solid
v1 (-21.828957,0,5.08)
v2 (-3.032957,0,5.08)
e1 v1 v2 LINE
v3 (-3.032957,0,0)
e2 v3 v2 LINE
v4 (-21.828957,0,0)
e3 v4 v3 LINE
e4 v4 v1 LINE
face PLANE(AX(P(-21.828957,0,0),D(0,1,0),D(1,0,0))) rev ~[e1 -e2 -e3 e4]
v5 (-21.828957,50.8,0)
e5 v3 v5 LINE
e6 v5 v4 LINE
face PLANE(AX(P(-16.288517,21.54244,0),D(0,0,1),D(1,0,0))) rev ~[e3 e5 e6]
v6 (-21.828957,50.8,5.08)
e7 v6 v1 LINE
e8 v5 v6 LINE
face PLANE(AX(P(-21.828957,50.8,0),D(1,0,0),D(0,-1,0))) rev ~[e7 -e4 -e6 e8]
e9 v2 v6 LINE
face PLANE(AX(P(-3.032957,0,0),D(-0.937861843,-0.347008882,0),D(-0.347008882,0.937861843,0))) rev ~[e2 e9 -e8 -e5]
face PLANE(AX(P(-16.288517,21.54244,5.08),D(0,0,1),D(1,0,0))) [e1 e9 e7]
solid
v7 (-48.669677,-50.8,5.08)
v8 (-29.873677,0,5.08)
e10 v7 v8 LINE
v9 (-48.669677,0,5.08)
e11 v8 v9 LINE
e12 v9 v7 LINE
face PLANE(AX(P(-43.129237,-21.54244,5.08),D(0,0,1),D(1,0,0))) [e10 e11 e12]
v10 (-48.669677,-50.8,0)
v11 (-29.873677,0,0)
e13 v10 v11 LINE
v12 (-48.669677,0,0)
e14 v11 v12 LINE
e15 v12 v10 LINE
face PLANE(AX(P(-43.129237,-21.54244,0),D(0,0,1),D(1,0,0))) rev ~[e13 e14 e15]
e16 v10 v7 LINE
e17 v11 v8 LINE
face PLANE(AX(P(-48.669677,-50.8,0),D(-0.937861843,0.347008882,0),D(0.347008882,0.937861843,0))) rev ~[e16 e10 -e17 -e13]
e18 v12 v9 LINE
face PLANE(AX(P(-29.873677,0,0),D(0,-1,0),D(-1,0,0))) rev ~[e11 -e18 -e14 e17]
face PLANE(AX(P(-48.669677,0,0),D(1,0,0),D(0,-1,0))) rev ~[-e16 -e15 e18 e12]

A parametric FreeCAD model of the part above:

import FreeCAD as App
import Part
import Sketcher
Q = App.Units.Quantity

doc = App.newDocument("Part")
params = doc.addObject("Spreadsheet::Sheet", "Params")
for row, (alias, value) in enumerate([
    ("sketch1_height", "2 in"),
    ("sketch1_width", "0.74 in"),
    ("pad1_length", "0.2 in"),
    ("sketch2_height", "2 in"),
    ("sketch2_width", "0.74 in"),
    ("pad2_length", "0.2 in"),
], start=1):
    params.set(f"A{row}", alias)
    params.set(f"B{row}", "=" + value)
    params.setAlias(f"B{row}", alias)

body = doc.addObject("PartDesign::Body", "Body")

sketch1 = body.newObject("Sketcher::SketchObject", "Sketch")
sketch1.AttachmentSupport = (doc.getObject("XY_Plane"), [""])
sketch1.MapMode = "FlatFace"
sketch1.addGeometry([
    Part.LineSegment(App.Vector(-29.873677, 0, 0), App.Vector(-48.669677, 0, 0)),
    Part.LineSegment(App.Vector(-48.669677, 0, 0), App.Vector(-48.669677, -50.8, 0)),
    Part.LineSegment(App.Vector(-48.669677, -50.8, 0), App.Vector(-29.873677, 0, 0)),
], False)
sketch1.addConstraint([
    Sketcher.Constraint("Coincident", 0, 2, 1, 1),
    Sketcher.Constraint("Coincident", 1, 2, 2, 1),
    Sketcher.Constraint("Coincident", 2, 2, 0, 1),
    Sketcher.Constraint("Horizontal", 0),
    Sketcher.Constraint("Vertical", 1),
    Sketcher.Constraint("PointOnObject", 0, 2, -1),
    Sketcher.Constraint("DistanceY", 1, 2, 1, 1, Q("2 in")),
    Sketcher.Constraint("DistanceX", 0, 2, 0, 1, Q("0.74 in")),
    Sketcher.Constraint("DistanceX", 0, 2, -1, 1, Q("48.669677 mm")),
])
sketch1.setExpression("Constraints[6]", "Params.sketch1_height")
sketch1.setExpression("Constraints[7]", "Params.sketch1_width")
pad1 = body.newObject("PartDesign::Pad", "Pad")
pad1.Profile = sketch1
pad1.setExpression("Length", "Params.pad1_length")
body2 = doc.addObject("PartDesign::Body", "Body001")

sketch2 = body2.newObject("Sketcher::SketchObject", "Sketch001")
sketch2.AttachmentSupport = (doc.getObject("XY_Plane001"), [""])
sketch2.MapMode = "FlatFace"
sketch2.addGeometry([
    Part.LineSegment(App.Vector(-21.828957, 50.8, 0), App.Vector(-21.828957, 0, 0)),
    Part.LineSegment(App.Vector(-21.828957, 0, 0), App.Vector(-3.032957, 0, 0)),
    Part.LineSegment(App.Vector(-3.032957, 0, 0), App.Vector(-21.828957, 50.8, 0)),
], False)
sketch2.addConstraint([
    Sketcher.Constraint("Coincident", 0, 2, 1, 1),
    Sketcher.Constraint("Coincident", 1, 2, 2, 1),
    Sketcher.Constraint("Coincident", 2, 2, 0, 1),
    Sketcher.Constraint("Vertical", 0),
    Sketcher.Constraint("Horizontal", 1),
    Sketcher.Constraint("PointOnObject", 0, 2, -1),
    Sketcher.Constraint("DistanceY", 0, 2, 0, 1, Q("2 in")),
    Sketcher.Constraint("DistanceX", 1, 1, 1, 2, Q("0.74 in")),
    Sketcher.Constraint("DistanceX", 0, 2, -1, 1, Q("21.828957 mm")),
])
sketch2.setExpression("Constraints[6]", "Params.sketch2_height")
sketch2.setExpression("Constraints[7]", "Params.sketch2_width")
pad2 = body2.newObject("PartDesign::Pad", "Pad001")
pad2.Profile = sketch2
pad2.setExpression("Length", "Params.pad2_length")

doc.recompute()
